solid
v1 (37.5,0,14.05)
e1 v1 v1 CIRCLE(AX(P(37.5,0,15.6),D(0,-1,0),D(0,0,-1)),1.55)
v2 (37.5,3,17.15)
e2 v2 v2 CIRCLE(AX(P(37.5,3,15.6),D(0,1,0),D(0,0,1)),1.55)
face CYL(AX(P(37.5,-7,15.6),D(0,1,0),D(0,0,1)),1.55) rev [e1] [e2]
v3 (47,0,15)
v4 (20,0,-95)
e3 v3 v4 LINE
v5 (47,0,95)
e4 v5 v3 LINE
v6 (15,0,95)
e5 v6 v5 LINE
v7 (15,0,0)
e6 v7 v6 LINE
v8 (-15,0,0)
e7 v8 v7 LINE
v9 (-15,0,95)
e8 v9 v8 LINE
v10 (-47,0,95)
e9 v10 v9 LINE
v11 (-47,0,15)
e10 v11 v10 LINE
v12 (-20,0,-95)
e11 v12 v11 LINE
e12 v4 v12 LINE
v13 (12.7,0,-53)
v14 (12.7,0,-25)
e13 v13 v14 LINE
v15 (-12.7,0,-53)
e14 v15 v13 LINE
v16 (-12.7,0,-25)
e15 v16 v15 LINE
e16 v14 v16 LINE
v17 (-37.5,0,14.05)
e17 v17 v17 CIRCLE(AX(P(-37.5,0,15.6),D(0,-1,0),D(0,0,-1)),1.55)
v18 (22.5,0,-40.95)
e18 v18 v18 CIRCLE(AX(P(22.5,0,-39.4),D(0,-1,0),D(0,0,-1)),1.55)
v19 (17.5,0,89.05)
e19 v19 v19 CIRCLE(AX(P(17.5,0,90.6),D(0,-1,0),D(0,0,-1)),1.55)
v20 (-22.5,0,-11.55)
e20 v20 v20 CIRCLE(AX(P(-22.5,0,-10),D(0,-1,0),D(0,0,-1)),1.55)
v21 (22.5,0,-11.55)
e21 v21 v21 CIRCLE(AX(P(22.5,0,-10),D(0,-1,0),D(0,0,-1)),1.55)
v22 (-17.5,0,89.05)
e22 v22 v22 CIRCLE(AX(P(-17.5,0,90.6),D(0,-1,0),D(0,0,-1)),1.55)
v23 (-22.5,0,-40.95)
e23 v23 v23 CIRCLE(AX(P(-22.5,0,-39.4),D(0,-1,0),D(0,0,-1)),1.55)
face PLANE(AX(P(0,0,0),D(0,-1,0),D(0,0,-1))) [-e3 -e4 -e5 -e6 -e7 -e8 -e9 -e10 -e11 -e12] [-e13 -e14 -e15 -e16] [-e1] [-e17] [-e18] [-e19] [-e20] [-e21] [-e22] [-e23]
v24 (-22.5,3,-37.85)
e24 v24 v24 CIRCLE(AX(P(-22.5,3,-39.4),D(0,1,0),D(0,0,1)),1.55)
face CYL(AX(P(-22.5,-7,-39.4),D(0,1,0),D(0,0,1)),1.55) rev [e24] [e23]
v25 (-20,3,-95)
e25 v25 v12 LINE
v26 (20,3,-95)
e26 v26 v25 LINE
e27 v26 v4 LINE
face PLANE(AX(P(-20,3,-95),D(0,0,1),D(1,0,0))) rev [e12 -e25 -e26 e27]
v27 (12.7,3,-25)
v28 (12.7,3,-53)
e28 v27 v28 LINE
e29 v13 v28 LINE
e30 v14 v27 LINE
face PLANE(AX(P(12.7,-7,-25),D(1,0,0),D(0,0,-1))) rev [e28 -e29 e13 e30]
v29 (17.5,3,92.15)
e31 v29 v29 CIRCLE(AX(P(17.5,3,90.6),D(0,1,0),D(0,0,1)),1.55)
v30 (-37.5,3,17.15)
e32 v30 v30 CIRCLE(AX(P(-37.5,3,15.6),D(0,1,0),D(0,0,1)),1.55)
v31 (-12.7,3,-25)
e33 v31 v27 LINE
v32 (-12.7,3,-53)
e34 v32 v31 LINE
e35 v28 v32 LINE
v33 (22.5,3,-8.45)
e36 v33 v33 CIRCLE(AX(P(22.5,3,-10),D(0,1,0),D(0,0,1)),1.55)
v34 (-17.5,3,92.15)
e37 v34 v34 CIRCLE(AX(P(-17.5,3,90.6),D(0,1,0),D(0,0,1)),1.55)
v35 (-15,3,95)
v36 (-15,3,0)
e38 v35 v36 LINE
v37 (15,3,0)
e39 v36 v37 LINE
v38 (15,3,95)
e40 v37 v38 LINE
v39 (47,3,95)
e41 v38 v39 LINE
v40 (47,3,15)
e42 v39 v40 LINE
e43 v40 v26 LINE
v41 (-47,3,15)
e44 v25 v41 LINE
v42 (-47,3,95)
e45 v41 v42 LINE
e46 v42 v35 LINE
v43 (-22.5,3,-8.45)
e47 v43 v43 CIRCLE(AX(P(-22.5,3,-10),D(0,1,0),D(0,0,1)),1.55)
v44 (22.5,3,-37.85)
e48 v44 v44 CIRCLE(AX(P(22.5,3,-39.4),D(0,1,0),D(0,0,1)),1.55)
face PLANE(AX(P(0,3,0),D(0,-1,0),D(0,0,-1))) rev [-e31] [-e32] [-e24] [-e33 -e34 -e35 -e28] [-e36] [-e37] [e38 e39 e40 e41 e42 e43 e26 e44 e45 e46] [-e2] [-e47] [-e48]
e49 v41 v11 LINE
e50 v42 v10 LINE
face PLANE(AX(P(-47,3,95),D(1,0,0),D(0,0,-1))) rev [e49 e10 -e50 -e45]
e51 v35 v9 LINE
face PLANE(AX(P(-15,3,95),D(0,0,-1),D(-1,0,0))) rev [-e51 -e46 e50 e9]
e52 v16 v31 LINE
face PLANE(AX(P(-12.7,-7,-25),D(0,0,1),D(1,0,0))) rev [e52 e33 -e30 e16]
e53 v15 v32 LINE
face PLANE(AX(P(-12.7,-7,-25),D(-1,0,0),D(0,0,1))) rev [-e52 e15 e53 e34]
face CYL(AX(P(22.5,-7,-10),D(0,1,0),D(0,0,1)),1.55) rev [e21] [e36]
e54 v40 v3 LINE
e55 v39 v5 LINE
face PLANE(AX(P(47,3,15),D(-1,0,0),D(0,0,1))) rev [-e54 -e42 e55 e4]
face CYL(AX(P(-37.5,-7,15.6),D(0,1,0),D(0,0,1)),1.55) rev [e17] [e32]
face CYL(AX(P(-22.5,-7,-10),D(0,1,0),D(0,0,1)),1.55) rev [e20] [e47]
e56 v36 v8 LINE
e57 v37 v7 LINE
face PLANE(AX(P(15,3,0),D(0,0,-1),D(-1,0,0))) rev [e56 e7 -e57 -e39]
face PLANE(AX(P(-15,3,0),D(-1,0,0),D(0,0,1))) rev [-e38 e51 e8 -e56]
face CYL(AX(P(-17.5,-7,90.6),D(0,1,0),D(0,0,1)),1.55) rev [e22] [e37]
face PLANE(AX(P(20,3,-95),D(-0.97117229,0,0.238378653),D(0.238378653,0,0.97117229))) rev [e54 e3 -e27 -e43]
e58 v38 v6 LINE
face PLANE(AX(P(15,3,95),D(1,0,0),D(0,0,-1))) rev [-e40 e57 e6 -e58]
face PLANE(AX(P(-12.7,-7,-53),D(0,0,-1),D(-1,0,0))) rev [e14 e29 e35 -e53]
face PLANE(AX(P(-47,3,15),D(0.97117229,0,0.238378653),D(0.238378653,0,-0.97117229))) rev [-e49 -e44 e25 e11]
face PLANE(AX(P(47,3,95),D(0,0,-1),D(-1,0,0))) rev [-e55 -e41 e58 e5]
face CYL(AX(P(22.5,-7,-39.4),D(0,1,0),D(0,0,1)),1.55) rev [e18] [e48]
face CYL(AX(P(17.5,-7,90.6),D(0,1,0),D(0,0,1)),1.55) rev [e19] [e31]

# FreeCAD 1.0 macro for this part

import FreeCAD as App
import Part
import Sketcher


def add_polygon(sketch, points):
    """Adds a closed chain of lines whose ends are joined by coincident constraints."""
    first, n = sketch.GeometryCount, len(points)
    for a, b in zip(points, points[1:] + points[:1]):
        sketch.addGeometry(Part.LineSegment(App.Vector(*a, 0), App.Vector(*b, 0)), False)
    for i in range(n):
        sketch.addConstraint(Sketcher.Constraint("Coincident", first + i, 2, first + (i + 1) % n, 1))

doc = App.newDocument("Part")
body = doc.addObject("PartDesign::Body", "Body")

# Sketch on XZ plane
sketch1 = body.newObject("Sketcher::SketchObject", "Sketch")
sketch1.AttachmentSupport = (doc.getObject("XZ_Plane"), [""])
sketch1.MapMode = "FlatFace"
add_polygon(sketch1, [(-47, 95), (-15, 95), (-15, 0), (15, 0), (15, 95), (47, 95), (47, 15), (20, -95), (-20, -95), (-47, 15)])  # lines 0-9
sketch1.addConstraint(Sketcher.Constraint("Horizontal", 0))
sketch1.addConstraint(Sketcher.Constraint("Vertical", 1))
sketch1.addConstraint(Sketcher.Constraint("Horizontal", 2))
sketch1.addConstraint(Sketcher.Constraint("Vertical", 3))
sketch1.addConstraint(Sketcher.Constraint("Horizontal", 4))
sketch1.addConstraint(Sketcher.Constraint("Vertical", 5))
sketch1.addConstraint(Sketcher.Constraint("Horizontal", 7))
sketch1.addConstraint(Sketcher.Constraint("Vertical", 9))
sketch1.addConstraint(Sketcher.Constraint("Symmetric", 1, 2, 2, 2, -1, 1))
sketch1.addConstraint(Sketcher.Constraint("Symmetric", 5, 2, 8, 2, -2))
sketch1.addConstraint(Sketcher.Constraint("Horizontal", 0, 2, 3, 2))
sketch1.addConstraint(Sketcher.Constraint("Equal", 6, 8))
sketch1.addConstraint(Sketcher.Constraint("DistanceX", 0, 1, 0, 2, 32.0))
sketch1.addConstraint(Sketcher.Constraint("DistanceX", 2, 1, 2, 2, 30.0))
sketch1.addConstraint(Sketcher.Constraint("DistanceX", 7, 2, 7, 1, 40.0))
sketch1.addConstraint(Sketcher.Constraint("DistanceY", 1, 2, 1, 1, 95.0))
sketch1.addConstraint(Sketcher.Constraint("DistanceY", 5, 2, 5, 1, 80.0))
sketch1.addConstraint(Sketcher.Constraint("DistanceY", 6, 2, -1, 1, 95.0))
pad1 = body.newObject("PartDesign::Pad", "Pad")
pad1.Profile = sketch1
pad1.Length = 3
pad1.Reversed = True

# Sketch on XZ plane
sketch2 = body.newObject("Sketcher::SketchObject", "Sketch001")
sketch2.AttachmentSupport = (doc.getObject("XZ_Plane"), [""])
sketch2.MapMode = "FlatFace"
sketch2.AttachmentOffset = App.Placement(App.Vector(0, 0, -3), App.Rotation())
add_polygon(sketch2, [(-13, -53), (-13, -25), (13, -25), (13, -53)])  # lines 0-3
sketch2.addConstraint(Sketcher.Constraint("Vertical", 0))
sketch2.addConstraint(Sketcher.Constraint("Horizontal", 1))
sketch2.addConstraint(Sketcher.Constraint("Vertical", 2))
sketch2.addConstraint(Sketcher.Constraint("Horizontal", 3))
sketch2.addConstraint(Sketcher.Constraint("DistanceY", 0, 1, 0, 2, 28.0))
sketch2.addConstraint(Sketcher.Constraint("DistanceX", 1, 1, 1, 2, 25.4))
sketch2.addConstraint(Sketcher.Constraint("DistanceY", 0, 2, -1, 1, 25.0))
sketch2.addConstraint(Sketcher.Constraint("DistanceX", 0, 2, -1, 1, 12.7))
pocket1 = body.newObject("PartDesign::Pocket", "Pocket")
pocket1.Profile = sketch2
pocket1.Length = 10
pocket1.Reversed = True

# Sketch on XZ plane
sketch3 = body.newObject("Sketcher::SketchObject", "Sketch002")
sketch3.AttachmentSupport = (doc.getObject("XZ_Plane"), [""])
sketch3.MapMode = "FlatFace"
sketch3.AttachmentOffset = App.Placement(App.Vector(0, 0, -3), App.Rotation())
sketch3.addGeometry(Part.Circle(App.Vector(-22.5, -39.4, 0), App.Vector(0, 0, 1), 1.6), False)
sketch3.addGeometry(Part.Circle(App.Vector(22.5, -39.4, 0), App.Vector(0, 0, 1), 1.6), False)
sketch3.addGeometry(Part.Circle(App.Vector(37.5, 15.6, 0), App.Vector(0, 0, 1), 1.6), False)
sketch3.addGeometry(Part.Circle(App.Vector(-37.5, 15.6, 0), App.Vector(0, 0, 1), 1.6), False)
sketch3.addGeometry(Part.Circle(App.Vector(-17.5, 90.6, 0), App.Vector(0, 0, 1), 1.6), False)
sketch3.addGeometry(Part.Circle(App.Vector(17.5, 90.6, 0), App.Vector(0, 0, 1), 1.6), False)
sketch3.addConstraint(Sketcher.Constraint("Equal", 0, 1))
sketch3.addConstraint(Sketcher.Constraint("Equal", 1, 2))
sketch3.addConstraint(Sketcher.Constraint("Equal", 2, 3))
sketch3.addConstraint(Sketcher.Constraint("Equal", 3, 4))
sketch3.addConstraint(Sketcher.Constraint("Equal", 4, 5))
sketch3.addConstraint(Sketcher.Constraint("Symmetric", 0, 3, 1, 3, -2))
sketch3.addConstraint(Sketcher.Constraint("Symmetric", 2, 3, 3, 3, -2))
sketch3.addConstraint(Sketcher.Constraint("Symmetric", 4, 3, 5, 3, -2))
sketch3.addConstraint(Sketcher.Constraint("Diameter", 0, 3.1))
sketch3.addConstraint(Sketcher.Constraint("DistanceX", 0, 3, 1, 3, 45.0))
sketch3.addConstraint(Sketcher.Constraint("DistanceX", 1, 3, 2, 3, 15.0))
sketch3.addConstraint(Sketcher.Constraint("DistanceY", 1, 3, 2, 3, 55.0))
sketch3.addConstraint(Sketcher.Constraint("DistanceX", 3, 3, 4, 3, 20.0))
sketch3.addConstraint(Sketcher.Constraint("DistanceY", 3, 3, 4, 3, 75.0))
sketch3.addConstraint(Sketcher.Constraint("DistanceY", 0, 3, -1, 1, 39.4))
pocket2 = body.newObject("PartDesign::Pocket", "Pocket001")
pocket2.Profile = sketch3
pocket2.Length = 10
pocket2.Reversed = True

# Sketch on XZ plane
sketch4 = body.newObject("Sketcher::SketchObject", "Sketch003")
sketch4.AttachmentSupport = (doc.getObject("XZ_Plane"), [""])
sketch4.MapMode = "FlatFace"
sketch4.AttachmentOffset = App.Placement(App.Vector(0, 0, -3), App.Rotation())
sketch4.addGeometry(Part.Circle(App.Vector(-22.5, -10, 0), App.Vector(0, 0, 1), 1.6), False)
sketch4.addGeometry(Part.Circle(App.Vector(22.5, -10, 0), App.Vector(0, 0, 1), 1.6), False)
sketch4.addConstraint(Sketcher.Constraint("Equal", 0, 1))
sketch4.addConstraint(Sketcher.Constraint("Symmetric", 0, 3, 1, 3, -2))
sketch4.addConstraint(Sketcher.Constraint("Diameter", 0, 3.1))
sketch4.addConstraint(Sketcher.Constraint("DistanceY", 0, 3, -1, 1, 10.0))
sketch4.addConstraint(Sketcher.Constraint("DistanceX", 0, 3, 1, 3, 45.0))
pocket3 = body.newObject("PartDesign::Pocket", "Pocket002")
pocket3.Profile = sketch4
pocket3.Length = 10
pocket3.Reversed = True

doc.recompute()
